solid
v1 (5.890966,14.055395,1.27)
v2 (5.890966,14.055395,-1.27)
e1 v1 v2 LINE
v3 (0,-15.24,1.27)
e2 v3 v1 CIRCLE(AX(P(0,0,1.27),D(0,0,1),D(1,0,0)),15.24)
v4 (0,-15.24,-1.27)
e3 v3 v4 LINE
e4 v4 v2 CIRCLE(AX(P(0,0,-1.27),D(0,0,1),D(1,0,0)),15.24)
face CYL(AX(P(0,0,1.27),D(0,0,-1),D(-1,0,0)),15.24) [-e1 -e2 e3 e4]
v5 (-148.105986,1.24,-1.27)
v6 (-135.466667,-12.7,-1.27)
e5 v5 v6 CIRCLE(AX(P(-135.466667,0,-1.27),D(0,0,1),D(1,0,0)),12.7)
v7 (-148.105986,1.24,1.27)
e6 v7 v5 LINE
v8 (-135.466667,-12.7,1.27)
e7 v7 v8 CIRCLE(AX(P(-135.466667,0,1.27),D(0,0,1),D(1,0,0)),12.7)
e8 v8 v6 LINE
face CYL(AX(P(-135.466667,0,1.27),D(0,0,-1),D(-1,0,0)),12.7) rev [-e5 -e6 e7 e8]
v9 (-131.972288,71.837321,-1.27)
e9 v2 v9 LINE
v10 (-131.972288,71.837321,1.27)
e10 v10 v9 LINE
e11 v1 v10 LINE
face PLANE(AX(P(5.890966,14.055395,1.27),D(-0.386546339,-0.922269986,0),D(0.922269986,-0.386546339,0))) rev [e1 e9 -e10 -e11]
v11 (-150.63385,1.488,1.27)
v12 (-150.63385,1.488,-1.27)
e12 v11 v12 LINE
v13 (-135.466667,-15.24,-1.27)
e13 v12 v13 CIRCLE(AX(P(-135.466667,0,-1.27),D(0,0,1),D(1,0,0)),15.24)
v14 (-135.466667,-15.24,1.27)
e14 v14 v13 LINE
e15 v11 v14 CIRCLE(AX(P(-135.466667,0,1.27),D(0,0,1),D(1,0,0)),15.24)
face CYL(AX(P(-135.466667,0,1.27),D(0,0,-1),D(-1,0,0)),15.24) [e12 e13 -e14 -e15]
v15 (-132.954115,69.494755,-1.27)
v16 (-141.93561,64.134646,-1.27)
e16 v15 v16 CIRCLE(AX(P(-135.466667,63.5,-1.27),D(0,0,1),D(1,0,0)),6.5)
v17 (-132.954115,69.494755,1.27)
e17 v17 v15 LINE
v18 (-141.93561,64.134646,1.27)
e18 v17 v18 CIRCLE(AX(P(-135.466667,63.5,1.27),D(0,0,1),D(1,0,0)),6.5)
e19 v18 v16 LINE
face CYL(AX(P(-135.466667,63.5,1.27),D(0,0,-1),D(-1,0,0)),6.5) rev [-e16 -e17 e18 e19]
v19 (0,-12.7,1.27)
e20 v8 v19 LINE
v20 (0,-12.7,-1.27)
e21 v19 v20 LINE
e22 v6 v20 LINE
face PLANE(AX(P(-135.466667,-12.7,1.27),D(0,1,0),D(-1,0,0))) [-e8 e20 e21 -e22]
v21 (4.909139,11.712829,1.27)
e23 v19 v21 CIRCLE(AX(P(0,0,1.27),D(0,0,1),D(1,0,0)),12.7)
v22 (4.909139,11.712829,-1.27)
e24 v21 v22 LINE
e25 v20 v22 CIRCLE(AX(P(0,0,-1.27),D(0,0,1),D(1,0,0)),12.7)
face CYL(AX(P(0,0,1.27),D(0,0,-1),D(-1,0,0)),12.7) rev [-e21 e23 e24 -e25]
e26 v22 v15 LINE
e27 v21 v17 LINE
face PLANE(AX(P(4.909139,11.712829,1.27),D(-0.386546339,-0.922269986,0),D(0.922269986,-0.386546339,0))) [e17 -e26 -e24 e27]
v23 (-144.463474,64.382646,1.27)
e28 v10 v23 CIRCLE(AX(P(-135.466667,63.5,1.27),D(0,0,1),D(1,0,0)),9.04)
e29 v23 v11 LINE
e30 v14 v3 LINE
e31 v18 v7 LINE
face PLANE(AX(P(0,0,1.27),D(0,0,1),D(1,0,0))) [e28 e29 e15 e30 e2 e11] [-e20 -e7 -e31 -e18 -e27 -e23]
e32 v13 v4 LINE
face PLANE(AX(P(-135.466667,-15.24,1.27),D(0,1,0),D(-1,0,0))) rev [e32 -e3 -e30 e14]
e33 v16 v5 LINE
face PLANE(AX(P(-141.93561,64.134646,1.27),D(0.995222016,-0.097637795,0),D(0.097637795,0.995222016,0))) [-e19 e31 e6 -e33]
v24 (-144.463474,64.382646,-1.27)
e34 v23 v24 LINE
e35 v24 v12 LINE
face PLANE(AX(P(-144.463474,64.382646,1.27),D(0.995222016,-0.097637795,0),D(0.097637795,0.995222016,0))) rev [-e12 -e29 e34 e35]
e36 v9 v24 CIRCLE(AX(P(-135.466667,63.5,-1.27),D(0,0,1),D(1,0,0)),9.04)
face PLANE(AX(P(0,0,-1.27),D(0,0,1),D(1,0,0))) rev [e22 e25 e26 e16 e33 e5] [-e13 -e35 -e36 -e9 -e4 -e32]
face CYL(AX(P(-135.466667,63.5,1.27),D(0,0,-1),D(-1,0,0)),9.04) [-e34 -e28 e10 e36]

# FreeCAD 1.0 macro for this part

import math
import FreeCAD as App
import Part
import Sketcher
Q = App.Units.Quantity

doc = App.newDocument("Part")
body = doc.addObject("PartDesign::Body", "Body")

sketch1 = body.newObject("Sketcher::SketchObject", "Sketch")
sketch1.AttachmentSupport = (doc.getObject("XY_Plane"), [""])
sketch1.MapMode = "FlatFace"
sketch1.addGeometry([
    Part.LineSegment(App.Vector(5.890966, 14.055395, 0), App.Vector(-131.972288, 71.837321, 0)),
    Part.ArcOfCircle(Part.Circle(App.Vector(-135.466667, 63.5, 0), App.Vector(0, 0, 1), 9.04), math.radians(67.260227), math.radians(174.39684)),
    Part.LineSegment(App.Vector(-144.463474, 64.382646, 0), App.Vector(-150.63385, 1.488, 0)),
    Part.ArcOfCircle(Part.Circle(App.Vector(-135.466667, 0, 0), App.Vector(0, 0, 1), 15.24), math.radians(174.39684), math.radians(270)),
    Part.LineSegment(App.Vector(-135.466667, -15.24, 0), App.Vector(0, -15.24, 0)),
    Part.ArcOfCircle(Part.Circle(App.Vector(0, 0, 0), App.Vector(0, 0, 1), 15.24), math.radians(-90), math.radians(67.260227)),
    Part.LineSegment(App.Vector(-148.105986, 1.24, 0), App.Vector(-141.93561, 64.134646, 0)),
    Part.ArcOfCircle(Part.Circle(App.Vector(-135.466667, 63.5, 0), App.Vector(0, 0, 1), 6.5), math.radians(67.260227), math.radians(174.39684)),
    Part.LineSegment(App.Vector(-132.954115, 69.494755, 0), App.Vector(4.909139, 11.712829, 0)),
    Part.ArcOfCircle(Part.Circle(App.Vector(0, 0, 0), App.Vector(0, 0, 1), 12.7), math.radians(-90), math.radians(67.260227)),
    Part.LineSegment(App.Vector(0, -12.7, 0), App.Vector(-135.466667, -12.7, 0)),
    Part.ArcOfCircle(Part.Circle(App.Vector(-135.466667, 0, 0), App.Vector(0, 0, 1), 12.7), math.radians(174.39684), math.radians(270)),
], False)
sketch1.addConstraint([
    Sketcher.Constraint("Tangent", 0, 2, 1, 1),
    Sketcher.Constraint("Tangent", 1, 2, 2, 1),
    Sketcher.Constraint("Tangent", 2, 2, 3, 1),
    Sketcher.Constraint("Tangent", 3, 2, 4, 1),
    Sketcher.Constraint("Tangent", 4, 2, 5, 1),
    Sketcher.Constraint("Tangent", 5, 2, 0, 1),
    Sketcher.Constraint("Tangent", 6, 2, 7, 2),
    Sketcher.Constraint("Tangent", 7, 1, 8, 1),
    Sketcher.Constraint("Tangent", 8, 2, 9, 2),
    Sketcher.Constraint("Tangent", 9, 1, 10, 1),
    Sketcher.Constraint("Tangent", 10, 2, 11, 2),
    Sketcher.Constraint("Tangent", 11, 1, 6, 1),
    Sketcher.Constraint("Horizontal", 4),
    Sketcher.Constraint("Horizontal", 10),
    Sketcher.Constraint("Coincident", 5, 3, -1, 1),
    Sketcher.Constraint("Coincident", 9, 3, -1, 1),
    Sketcher.Constraint("Coincident", 7, 3, 1, 3),
    Sketcher.Constraint("Coincident", 11, 3, 3, 3),
    Sketcher.Constraint("Equal", 3, 5),
    Sketcher.Constraint("Parallel", 2, 6),
    Sketcher.Constraint("Vertical", 1, 3, 3, 3),
    Sketcher.Constraint("Radius", 3, Q("0.6 in")),
    Sketcher.Constraint("Radius", 9, Q("0.5 in")),
    Sketcher.Constraint("DistanceY", 10, 2, 1, 3, Q("3 in")),
    Sketcher.Constraint("Radius", 1, 9.04),
    Sketcher.Constraint("DistanceX", 4, 1, 4, 2, 135.466667),
])
pad1 = body.newObject("PartDesign::Pad", "Pad")
pad1.Profile = sketch1
pad1.Length = Q("0.1 in")
pad1.Midplane = True

doc.recompute()
